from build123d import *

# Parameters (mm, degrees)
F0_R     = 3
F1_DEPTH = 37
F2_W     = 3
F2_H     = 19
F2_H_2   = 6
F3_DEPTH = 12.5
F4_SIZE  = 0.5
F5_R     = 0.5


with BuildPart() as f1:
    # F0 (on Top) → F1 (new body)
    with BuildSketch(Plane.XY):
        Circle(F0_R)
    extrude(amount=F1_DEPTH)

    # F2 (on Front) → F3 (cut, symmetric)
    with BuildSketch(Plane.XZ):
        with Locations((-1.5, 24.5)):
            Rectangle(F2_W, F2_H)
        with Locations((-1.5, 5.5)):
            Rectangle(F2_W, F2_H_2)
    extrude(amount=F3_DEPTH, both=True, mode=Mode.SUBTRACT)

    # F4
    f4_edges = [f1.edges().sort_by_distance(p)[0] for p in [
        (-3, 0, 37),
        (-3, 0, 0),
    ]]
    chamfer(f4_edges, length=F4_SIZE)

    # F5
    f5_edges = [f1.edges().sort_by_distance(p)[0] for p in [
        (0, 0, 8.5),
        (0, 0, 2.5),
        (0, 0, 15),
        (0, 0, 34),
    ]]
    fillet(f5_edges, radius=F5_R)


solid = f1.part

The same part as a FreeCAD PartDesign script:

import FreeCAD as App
import Part
import Sketcher
from FreeCAD import Vector
Q = App.Units.Quantity


def edges_at(feature, points):
    """Names of the edges that pass closest to the given points."""
    edges = feature.Shape.Edges
    near = lambda p: min(range(len(edges)), key=lambda i: edges[i].distToShape(Part.Vertex(*p))[0])
    return sorted({f"Edge{near(p) + 1}" for p in points})

doc = App.newDocument("Part")
params = doc.addObject("Spreadsheet::Sheet", "Params")
for row, (alias, value) in enumerate([
    ("sketch1_diameter", "6 mm"),
    ("pad1_length", "37 mm"),
    ("sketch2_width", "3 mm"),
    ("sketch2_height", "19 mm"),
    ("sketch2_height2", "6 mm"),
    ("pocket1_length", "25 mm"),
    ("chamfer_size", "0.5 mm"),
    ("fillet_radius", "0.5 mm"),
], start=1):
    params.set(f"A{row}", alias)
    params.set(f"B{row}", "=" + value)
    params.setAlias(f"B{row}", alias)

body = doc.addObject("PartDesign::Body", "Body")

# Sketch on XY plane
sketch1 = doc.addObject("Sketcher::SketchObject", "Sketch")
body.addObject(sketch1)
sketch1.AttachmentSupport = (doc.XY_Plane, [""])
sketch1.MapMode = "FlatFace"
sketch1.addGeometry(Part.Circle(Vector(0, 0, 0), Vector(0, 0, 1), 3), False)
sketch1.addConstraint([
    Sketcher.Constraint("Coincident", 0, 3, -1, 1),
    Sketcher.Constraint("Diameter", 0, Q("6 mm")),
])
sketch1.setExpression("Constraints[1]", "Params.sketch1_diameter")
pad1 = doc.addObject("PartDesign::Pad", "Pad")
body.addObject(pad1)
pad1.Profile = sketch1
pad1.setExpression("Length", "Params.pad1_length")

# Sketch on XZ plane
sketch2 = doc.addObject("Sketcher::SketchObject", "Sketch001")
body.addObject(sketch2)
sketch2.AttachmentSupport = (doc.XZ_Plane, [""])
sketch2.MapMode = "FlatFace"
sketch2.addGeometry([
    Part.LineSegment(Vector(-3, 34, 0), Vector(-3, 15, 0)),  # 0
    Part.LineSegment(Vector(-3, 15, 0), Vector(0, 15, 0)),  # 1
    Part.LineSegment(Vector(0, 15, 0), Vector(0, 34, 0)),  # 2
    Part.LineSegment(Vector(0, 34, 0), Vector(-3, 34, 0)),  # 3
    Part.LineSegment(Vector(-3, 8.5, 0), Vector(-3, 2.5, 0)),  # 4
    Part.LineSegment(Vector(-3, 2.5, 0), Vector(0, 2.5, 0)),  # 5
    Part.LineSegment(Vector(0, 2.5, 0), Vector(0, 8.5, 0)),  # 6
    Part.LineSegment(Vector(0, 8.5, 0), Vector(-3, 8.5, 0)),  # 7
], False)
sketch2.addConstraint([
    Sketcher.Constraint("Coincident", 0, 2, 1, 1),
    Sketcher.Constraint("Coincident", 1, 2, 2, 1),
    Sketcher.Constraint("Coincident", 2, 2, 3, 1),
    Sketcher.Constraint("Coincident", 3, 2, 0, 1),
    Sketcher.Constraint("Coincident", 4, 2, 5, 1),
    Sketcher.Constraint("Coincident", 5, 2, 6, 1),
    Sketcher.Constraint("Coincident", 6, 2, 7, 1),
    Sketcher.Constraint("Coincident", 7, 2, 4, 1),
    Sketcher.Constraint("Vertical", 0),
    Sketcher.Constraint("Horizontal", 1),
    Sketcher.Constraint("Vertical", 2),
    Sketcher.Constraint("Horizontal", 3),
    Sketcher.Constraint("Vertical", 4),
    Sketcher.Constraint("Horizontal", 5),
    Sketcher.Constraint("Vertical", 6),
    Sketcher.Constraint("Horizontal", 7),
    Sketcher.Constraint("PointOnObject", 1, 2, -2),
    Sketcher.Constraint("PointOnObject", 5, 2, -2),
    Sketcher.Constraint("Vertical", 3, 2, 4, 2),
    Sketcher.Constraint("DistanceX", 1, 1, 1, 2, Q("3 mm")),
    Sketcher.Constraint("DistanceY", 0, 2, 0, 1, Q("19 mm")),
    Sketcher.Constraint("DistanceY", 4, 2, 4, 1, Q("6 mm")),
    Sketcher.Constraint("DistanceY", -1, 1, 0, 2, Q("15 mm")),
    Sketcher.Constraint("DistanceY", -1, 1, 4, 2, Q("2.5 mm")),
])
sketch2.setExpression("Constraints[19]", "Params.sketch2_width")
sketch2.setExpression("Constraints[20]", "Params.sketch2_height")
sketch2.setExpression("Constraints[21]", "Params.sketch2_height2")
pocket1 = doc.addObject("PartDesign::Pocket", "Pocket")
body.addObject(pocket1)
pocket1.Profile = sketch2
pocket1.setExpression("Length", "Params.pocket1_length")
pocket1.Midplane = True
doc.recompute()

chamfer = doc.addObject("PartDesign::Chamfer", "Chamfer")
body.addObject(chamfer)
chamfer.Base = (pocket1, edges_at(pocket1, [(-3, 0, 37), (-3, 0, 0)]))
chamfer.setExpression("Size", "Params.chamfer_size")
doc.recompute()

fillet = doc.addObject("PartDesign::Fillet", "Fillet")
body.addObject(fillet)
fillet.Base = (chamfer, edges_at(chamfer, [
    (0, 0, 8.5),
    (0, 0, 2.5),
    (0, 0, 15),
    (0, 0, 34),
]))
fillet.setExpression("Radius", "Params.fillet_radius")

doc.recompute()
